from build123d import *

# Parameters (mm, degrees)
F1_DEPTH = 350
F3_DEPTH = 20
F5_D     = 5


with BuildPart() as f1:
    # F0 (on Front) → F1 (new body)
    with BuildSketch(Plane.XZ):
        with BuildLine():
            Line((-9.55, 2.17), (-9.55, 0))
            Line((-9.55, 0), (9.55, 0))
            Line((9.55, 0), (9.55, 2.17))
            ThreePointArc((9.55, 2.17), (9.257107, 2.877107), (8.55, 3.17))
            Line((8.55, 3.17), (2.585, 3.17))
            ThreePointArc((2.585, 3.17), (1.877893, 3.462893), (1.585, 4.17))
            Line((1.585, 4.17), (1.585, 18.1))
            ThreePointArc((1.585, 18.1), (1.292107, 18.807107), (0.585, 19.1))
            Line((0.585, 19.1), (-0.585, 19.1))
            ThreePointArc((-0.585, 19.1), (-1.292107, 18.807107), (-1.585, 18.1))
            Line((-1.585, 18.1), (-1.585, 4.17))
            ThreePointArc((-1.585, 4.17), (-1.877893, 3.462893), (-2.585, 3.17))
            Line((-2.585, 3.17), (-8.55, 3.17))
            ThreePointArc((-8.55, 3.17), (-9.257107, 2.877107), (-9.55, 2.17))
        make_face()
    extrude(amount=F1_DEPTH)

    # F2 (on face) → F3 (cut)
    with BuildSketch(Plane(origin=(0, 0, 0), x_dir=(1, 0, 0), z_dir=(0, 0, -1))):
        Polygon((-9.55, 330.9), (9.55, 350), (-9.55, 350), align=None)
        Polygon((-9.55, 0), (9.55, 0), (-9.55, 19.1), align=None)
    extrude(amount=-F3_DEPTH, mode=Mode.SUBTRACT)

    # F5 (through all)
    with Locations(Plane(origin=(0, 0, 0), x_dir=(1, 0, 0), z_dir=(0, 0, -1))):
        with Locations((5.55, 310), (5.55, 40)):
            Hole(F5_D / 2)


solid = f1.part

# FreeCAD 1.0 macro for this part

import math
import FreeCAD as App
import Part
import Sketcher
from FreeCAD import Vector
Q = App.Units.Quantity


def add_polygon(sketch, points):
    """Adds a closed chain of lines whose ends are joined by coincident constraints."""
    first, n = sketch.GeometryCount, len(points)
    for a, b in zip(points, points[1:] + points[:1]):
        sketch.addGeometry(Part.LineSegment(App.Vector(*a, 0), App.Vector(*b, 0)), False)
    for i in range(n):
        sketch.addConstraint(Sketcher.Constraint("Coincident", first + i, 2, first + (i + 1) % n, 1))

doc = App.newDocument("Part")
body = doc.addObject("PartDesign::Body", "Body")

sketch1 = body.newObject("Sketcher::SketchObject", "Sketch")
sketch1.AttachmentSupport = (doc.getObject("XZ_Plane"), [""])
sketch1.MapMode = "FlatFace"
sketch1.addGeometry(Part.LineSegment(Vector(-9.55, 2.17, 0), Vector(-9.55, 0, 0)), False)
sketch1.addGeometry(Part.LineSegment(Vector(-9.55, 0, 0), Vector(9.55, 0, 0)), False)
sketch1.addGeometry(Part.LineSegment(Vector(9.55, 0, 0), Vector(9.55, 2.17, 0)), False)
sketch1.addGeometry(Part.ArcOfCircle(Part.Circle(Vector(8.550001, 2.170001, 0), Vector(0, 0, 1), 0.999999), math.radians(-0.000043), math.radians(90.000043)), False)
sketch1.addGeometry(Part.LineSegment(Vector(8.55, 3.17, 0), Vector(2.585, 3.17, 0)), False)
sketch1.addGeometry(Part.ArcOfCircle(Part.Circle(Vector(2.584999, 4.169999, 0), Vector(0, 0, 1), 0.999999), math.radians(179.999957), math.radians(270.000043)), False)
sketch1.addGeometry(Part.LineSegment(Vector(1.585, 4.17, 0), Vector(1.585, 18.1, 0)), False)
sketch1.addGeometry(Part.ArcOfCircle(Part.Circle(Vector(0.585001, 18.100001, 0), Vector(0, 0, 1), 0.999999), math.radians(-0.000043), math.radians(90.000043)), False)
sketch1.addGeometry(Part.LineSegment(Vector(0.585, 19.1, 0), Vector(-0.585, 19.1, 0)), False)
sketch1.addGeometry(Part.ArcOfCircle(Part.Circle(Vector(-0.585001, 18.100001, 0), Vector(0, 0, 1), 0.999999), math.radians(89.999957), math.radians(180.000043)), False)
sketch1.addGeometry(Part.LineSegment(Vector(-1.585, 18.1, 0), Vector(-1.585, 4.17, 0)), False)
sketch1.addGeometry(Part.ArcOfCircle(Part.Circle(Vector(-2.584999, 4.169999, 0), Vector(0, 0, 1), 0.999999), math.radians(-90.000043), math.radians(0.000043)), False)
sketch1.addGeometry(Part.LineSegment(Vector(-2.585, 3.17, 0), Vector(-8.55, 3.17, 0)), False)
sketch1.addGeometry(Part.ArcOfCircle(Part.Circle(Vector(-8.550001, 2.170001, 0), Vector(0, 0, 1), 0.999999), math.radians(89.999957), math.radians(180.000043)), False)
sketch1.addConstraint(Sketcher.Constraint("Coincident", 0, 2, 1, 1))
sketch1.addConstraint(Sketcher.Constraint("Coincident", 1, 2, 2, 1))
sketch1.addConstraint(Sketcher.Constraint("Tangent", 2, 2, 3, 1))
sketch1.addConstraint(Sketcher.Constraint("Tangent", 3, 2, 4, 1))
sketch1.addConstraint(Sketcher.Constraint("Tangent", 4, 2, 5, 2))
sketch1.addConstraint(Sketcher.Constraint("Tangent", 5, 1, 6, 1))
sketch1.addConstraint(Sketcher.Constraint("Tangent", 6, 2, 7, 1))
sketch1.addConstraint(Sketcher.Constraint("Tangent", 7, 2, 8, 1))
sketch1.addConstraint(Sketcher.Constraint("Tangent", 8, 2, 9, 1))
sketch1.addConstraint(Sketcher.Constraint("Tangent", 9, 2, 10, 1))
sketch1.addConstraint(Sketcher.Constraint("Tangent", 10, 2, 11, 2))
sketch1.addConstraint(Sketcher.Constraint("Tangent", 11, 1, 12, 1))
sketch1.addConstraint(Sketcher.Constraint("Tangent", 12, 2, 13, 1))
sketch1.addConstraint(Sketcher.Constraint("Tangent", 13, 2, 0, 1))
sketch1.addConstraint(Sketcher.Constraint("Vertical", 0))
sketch1.addConstraint(Sketcher.Constraint("Horizontal", 1))
sketch1.addConstraint(Sketcher.Constraint("Vertical", 2))
sketch1.addConstraint(Sketcher.Constraint("Horizontal", 4))
sketch1.addConstraint(Sketcher.Constraint("Vertical", 6))
sketch1.addConstraint(Sketcher.Constraint("Horizontal", 8))
sketch1.addConstraint(Sketcher.Constraint("Vertical", 10))
sketch1.addConstraint(Sketcher.Constraint("Horizontal", 12))
sketch1.addConstraint(Sketcher.Constraint("Equal", 3, 5))
sketch1.addConstraint(Sketcher.Constraint("Equal", 5, 7))
sketch1.addConstraint(Sketcher.Constraint("Equal", 7, 9))
sketch1.addConstraint(Sketcher.Constraint("Equal", 9, 11))
sketch1.addConstraint(Sketcher.Constraint("Equal", 11, 13))
sketch1.addConstraint(Sketcher.Constraint("Symmetric", 0, 2, 1, 2, -1, 1))
sketch1.addConstraint(Sketcher.Constraint("Symmetric", 5, 3, 11, 3, -2))
sketch1.addConstraint(Sketcher.Constraint("Radius", 3, Q("0.999999 mm")))
sketch1.addConstraint(Sketcher.Constraint("DistanceX", 1, 1, 1, 2, Q("19.1 mm")))
sketch1.addConstraint(Sketcher.Constraint("DistanceX", 8, 2, 8, 1, Q("1.17 mm")))
sketch1.addConstraint(Sketcher.Constraint("DistanceY", 0, 2, 0, 1, Q("2.17 mm")))
sketch1.addConstraint(Sketcher.Constraint("DistanceY", 6, 1, 6, 2, Q("13.93 mm")))
pad1 = body.newObject("PartDesign::Pad", "Pad")
pad1.Profile = sketch1
pad1.Length = 350

sketch2 = body.newObject("Sketcher::SketchObject", "Sketch001")
sketch2.AttachmentSupport = (doc.getObject("XY_Plane"), [""])
sketch2.MapMode = "FlatFace"
add_polygon(sketch2, [(-9.55, -330.9), (9.55, -350), (-9.55, -350)])
add_polygon(sketch2, [(-9.55, 0), (9.55, 0), (-9.55, -19.1)])
sketch2.addConstraint(Sketcher.Constraint("Horizontal", 1))
sketch2.addConstraint(Sketcher.Constraint("Vertical", 2))
sketch2.addConstraint(Sketcher.Constraint("Horizontal", 3))
sketch2.addConstraint(Sketcher.Constraint("Vertical", 5))
sketch2.addConstraint(Sketcher.Constraint("Symmetric", 3, 2, 5, 2, -1, 1))
sketch2.addConstraint(Sketcher.Constraint("Perpendicular", 0, 4))
sketch2.addConstraint(Sketcher.Constraint("Vertical", 0, 2, 3, 2))
sketch2.addConstraint(Sketcher.Constraint("Vertical", 2, 2, 4, 2))
sketch2.addConstraint(Sketcher.Constraint("Equal", 3, 2))
sketch2.addConstraint(Sketcher.Constraint("DistanceX", 1, 2, 1, 1, Q("19.1 mm")))
sketch2.addConstraint(Sketcher.Constraint("DistanceY", 0, 2, -1, 1, Q("350 mm")))
pocket1 = body.newObject("PartDesign::Pocket", "Pocket")
pocket1.Profile = sketch2
pocket1.Length = 20
pocket1.Reversed = True

sketch3 = body.newObject("Sketcher::SketchObject", "Sketch002")
sketch3.AttachmentSupport = (doc.getObject("XY_Plane"), [""])
sketch3.MapMode = "FlatFace"
sketch3.addGeometry(Part.Circle(Vector(5.55, -310, 0), Vector(0, 0, 1), 2.5), False)
sketch3.addGeometry(Part.Circle(Vector(5.55, -40, 0), Vector(0, 0, 1), 2.5), False)
sketch3.addConstraint(Sketcher.Constraint("Equal", 0, 1))
sketch3.addConstraint(Sketcher.Constraint("Vertical", 0, 3, 1, 3))
sketch3.addConstraint(Sketcher.Constraint("Diameter", 0, Q("5 mm")))
sketch3.addConstraint(Sketcher.Constraint("DistanceY", 0, 3, -1, 1, Q("310 mm")))
sketch3.addConstraint(Sketcher.Constraint("DistanceY", 1, 3, -1, 1, Q("40 mm")))
sketch3.addConstraint(Sketcher.Constraint("DistanceX", -1, 1, 0, 3, Q("5.55 mm")))
doc.recompute()
hole = body.newObject("PartDesign::Hole", "Hole")
hole.Profile = sketch3
hole.ThreadType = "None"
hole.Diameter = 5
hole.DepthType = "ThroughAll"
hole.Reversed = True

doc.recompute()
